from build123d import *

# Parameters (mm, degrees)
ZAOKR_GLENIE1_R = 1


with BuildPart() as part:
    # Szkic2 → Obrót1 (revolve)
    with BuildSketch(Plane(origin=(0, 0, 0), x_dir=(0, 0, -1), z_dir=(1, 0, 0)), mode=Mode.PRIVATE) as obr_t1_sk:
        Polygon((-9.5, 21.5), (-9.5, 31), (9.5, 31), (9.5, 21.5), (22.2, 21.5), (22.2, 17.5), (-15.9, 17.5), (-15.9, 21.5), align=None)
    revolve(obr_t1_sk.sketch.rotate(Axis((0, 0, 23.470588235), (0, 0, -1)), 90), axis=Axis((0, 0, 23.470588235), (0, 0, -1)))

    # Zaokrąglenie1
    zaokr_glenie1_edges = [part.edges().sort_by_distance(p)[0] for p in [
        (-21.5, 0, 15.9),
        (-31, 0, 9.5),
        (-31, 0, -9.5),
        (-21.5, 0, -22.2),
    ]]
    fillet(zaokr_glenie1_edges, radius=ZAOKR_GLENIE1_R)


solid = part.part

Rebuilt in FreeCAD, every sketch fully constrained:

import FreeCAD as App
import Part
import Sketcher


def edges_at(feature, points):
    """Names of the edges that pass closest to the given points."""
    edges = feature.Shape.Edges
    near = lambda p: min(range(len(edges)), key=lambda i: edges[i].distToShape(Part.Vertex(*p))[0])
    return sorted({f"Edge{near(p) + 1}" for p in points})


def add_polygon(sketch, points):
    """Adds a closed chain of lines whose ends are joined by coincident constraints."""
    first, n = sketch.GeometryCount, len(points)
    for a, b in zip(points, points[1:] + points[:1]):
        sketch.addGeometry(Part.LineSegment(App.Vector(*a, 0), App.Vector(*b, 0)), False)
    for i in range(n):
        sketch.addConstraint(Sketcher.Constraint("Coincident", first + i, 2, first + (i + 1) % n, 1))

doc = App.newDocument("Part")
params = doc.addObject("Spreadsheet::Sheet", "Params")
for row, (alias, value) in enumerate([
    ("sketch1_width", "4 mm"),
    ("sketch1_height", "19 mm"),
    ("sketch1_width2", "9.5 mm"),
    ("sketch1_height2", "6.4 mm"),
    ("sketch1_height3", "38.1 mm"),
    ("revolution_angle", "360 deg"),
    ("fillet_radius", "1 mm"),
], start=1):
    params.set(f"A{row}", alias)
    params.set(f"B{row}", "=" + value)
    params.setAlias(f"B{row}", alias)

body = doc.addObject("PartDesign::Body", "Body")

# Sketch on YZ plane
sketch1 = body.newObject("Sketcher::SketchObject", "Sketch")
sketch1.AttachmentSupport = (doc.getObject("YZ_Plane"), [""])
sketch1.MapMode = "FlatFace"
add_polygon(sketch1, [(31, 9.5), (21.5, 9.5), (21.5, 15.9), (17.5, 15.9), (17.5, -22.2), (21.5, -22.2), (21.5, -9.5), (31, -9.5)])  # lines 0-7
sketch1.addConstraint([
    Sketcher.Constraint("Horizontal", 0),
    Sketcher.Constraint("Vertical", 1),
    Sketcher.Constraint("Horizontal", 2),
    Sketcher.Constraint("Vertical", 3),
    Sketcher.Constraint("Horizontal", 4),
    Sketcher.Constraint("Vertical", 5),
    Sketcher.Constraint("Horizontal", 6),
    Sketcher.Constraint("Vertical", 7),
    Sketcher.Constraint("Symmetric", 0, 2, 5, 2, -1),
    Sketcher.Constraint("DistanceX", 2, 2, 2, 1, 4.0),
    Sketcher.Constraint("DistanceY", 7, 1, 7, 2, 19.0),
    Sketcher.Constraint("DistanceX", 0, 2, 0, 1, 9.5),
    Sketcher.Constraint("DistanceY", 1, 1, 1, 2, 6.4),
    Sketcher.Constraint("DistanceY", 3, 2, 3, 1, 38.1),
    Sketcher.Constraint("DistanceX", -1, 1, 6, 2, 31.0),
])
sketch1.setExpression("Constraints[17]", "Params.sketch1_width")
sketch1.setExpression("Constraints[18]", "Params.sketch1_height")
sketch1.setExpression("Constraints[19]", "Params.sketch1_width2")
sketch1.setExpression("Constraints[20]", "Params.sketch1_height2")
sketch1.setExpression("Constraints[21]", "Params.sketch1_height3")
revolution = body.newObject("PartDesign::Revolution", "Revolution")
revolution.Profile = sketch1
revolution.ReferenceAxis = (sketch1, ["V_Axis"])
revolution.setExpression("Angle", "Params.revolution_angle")
doc.recompute()

fillet = body.newObject("PartDesign::Fillet", "Fillet")
fillet.Base = (revolution, edges_at(revolution, [
    (-21.5, 0, 15.9),
    (-31, 0, 9.5),
    (-31, 0, -9.5),
    (-21.5, 0, -22.2),
]))
fillet.setExpression("Radius", "Params.fillet_radius")

doc.recompute()
